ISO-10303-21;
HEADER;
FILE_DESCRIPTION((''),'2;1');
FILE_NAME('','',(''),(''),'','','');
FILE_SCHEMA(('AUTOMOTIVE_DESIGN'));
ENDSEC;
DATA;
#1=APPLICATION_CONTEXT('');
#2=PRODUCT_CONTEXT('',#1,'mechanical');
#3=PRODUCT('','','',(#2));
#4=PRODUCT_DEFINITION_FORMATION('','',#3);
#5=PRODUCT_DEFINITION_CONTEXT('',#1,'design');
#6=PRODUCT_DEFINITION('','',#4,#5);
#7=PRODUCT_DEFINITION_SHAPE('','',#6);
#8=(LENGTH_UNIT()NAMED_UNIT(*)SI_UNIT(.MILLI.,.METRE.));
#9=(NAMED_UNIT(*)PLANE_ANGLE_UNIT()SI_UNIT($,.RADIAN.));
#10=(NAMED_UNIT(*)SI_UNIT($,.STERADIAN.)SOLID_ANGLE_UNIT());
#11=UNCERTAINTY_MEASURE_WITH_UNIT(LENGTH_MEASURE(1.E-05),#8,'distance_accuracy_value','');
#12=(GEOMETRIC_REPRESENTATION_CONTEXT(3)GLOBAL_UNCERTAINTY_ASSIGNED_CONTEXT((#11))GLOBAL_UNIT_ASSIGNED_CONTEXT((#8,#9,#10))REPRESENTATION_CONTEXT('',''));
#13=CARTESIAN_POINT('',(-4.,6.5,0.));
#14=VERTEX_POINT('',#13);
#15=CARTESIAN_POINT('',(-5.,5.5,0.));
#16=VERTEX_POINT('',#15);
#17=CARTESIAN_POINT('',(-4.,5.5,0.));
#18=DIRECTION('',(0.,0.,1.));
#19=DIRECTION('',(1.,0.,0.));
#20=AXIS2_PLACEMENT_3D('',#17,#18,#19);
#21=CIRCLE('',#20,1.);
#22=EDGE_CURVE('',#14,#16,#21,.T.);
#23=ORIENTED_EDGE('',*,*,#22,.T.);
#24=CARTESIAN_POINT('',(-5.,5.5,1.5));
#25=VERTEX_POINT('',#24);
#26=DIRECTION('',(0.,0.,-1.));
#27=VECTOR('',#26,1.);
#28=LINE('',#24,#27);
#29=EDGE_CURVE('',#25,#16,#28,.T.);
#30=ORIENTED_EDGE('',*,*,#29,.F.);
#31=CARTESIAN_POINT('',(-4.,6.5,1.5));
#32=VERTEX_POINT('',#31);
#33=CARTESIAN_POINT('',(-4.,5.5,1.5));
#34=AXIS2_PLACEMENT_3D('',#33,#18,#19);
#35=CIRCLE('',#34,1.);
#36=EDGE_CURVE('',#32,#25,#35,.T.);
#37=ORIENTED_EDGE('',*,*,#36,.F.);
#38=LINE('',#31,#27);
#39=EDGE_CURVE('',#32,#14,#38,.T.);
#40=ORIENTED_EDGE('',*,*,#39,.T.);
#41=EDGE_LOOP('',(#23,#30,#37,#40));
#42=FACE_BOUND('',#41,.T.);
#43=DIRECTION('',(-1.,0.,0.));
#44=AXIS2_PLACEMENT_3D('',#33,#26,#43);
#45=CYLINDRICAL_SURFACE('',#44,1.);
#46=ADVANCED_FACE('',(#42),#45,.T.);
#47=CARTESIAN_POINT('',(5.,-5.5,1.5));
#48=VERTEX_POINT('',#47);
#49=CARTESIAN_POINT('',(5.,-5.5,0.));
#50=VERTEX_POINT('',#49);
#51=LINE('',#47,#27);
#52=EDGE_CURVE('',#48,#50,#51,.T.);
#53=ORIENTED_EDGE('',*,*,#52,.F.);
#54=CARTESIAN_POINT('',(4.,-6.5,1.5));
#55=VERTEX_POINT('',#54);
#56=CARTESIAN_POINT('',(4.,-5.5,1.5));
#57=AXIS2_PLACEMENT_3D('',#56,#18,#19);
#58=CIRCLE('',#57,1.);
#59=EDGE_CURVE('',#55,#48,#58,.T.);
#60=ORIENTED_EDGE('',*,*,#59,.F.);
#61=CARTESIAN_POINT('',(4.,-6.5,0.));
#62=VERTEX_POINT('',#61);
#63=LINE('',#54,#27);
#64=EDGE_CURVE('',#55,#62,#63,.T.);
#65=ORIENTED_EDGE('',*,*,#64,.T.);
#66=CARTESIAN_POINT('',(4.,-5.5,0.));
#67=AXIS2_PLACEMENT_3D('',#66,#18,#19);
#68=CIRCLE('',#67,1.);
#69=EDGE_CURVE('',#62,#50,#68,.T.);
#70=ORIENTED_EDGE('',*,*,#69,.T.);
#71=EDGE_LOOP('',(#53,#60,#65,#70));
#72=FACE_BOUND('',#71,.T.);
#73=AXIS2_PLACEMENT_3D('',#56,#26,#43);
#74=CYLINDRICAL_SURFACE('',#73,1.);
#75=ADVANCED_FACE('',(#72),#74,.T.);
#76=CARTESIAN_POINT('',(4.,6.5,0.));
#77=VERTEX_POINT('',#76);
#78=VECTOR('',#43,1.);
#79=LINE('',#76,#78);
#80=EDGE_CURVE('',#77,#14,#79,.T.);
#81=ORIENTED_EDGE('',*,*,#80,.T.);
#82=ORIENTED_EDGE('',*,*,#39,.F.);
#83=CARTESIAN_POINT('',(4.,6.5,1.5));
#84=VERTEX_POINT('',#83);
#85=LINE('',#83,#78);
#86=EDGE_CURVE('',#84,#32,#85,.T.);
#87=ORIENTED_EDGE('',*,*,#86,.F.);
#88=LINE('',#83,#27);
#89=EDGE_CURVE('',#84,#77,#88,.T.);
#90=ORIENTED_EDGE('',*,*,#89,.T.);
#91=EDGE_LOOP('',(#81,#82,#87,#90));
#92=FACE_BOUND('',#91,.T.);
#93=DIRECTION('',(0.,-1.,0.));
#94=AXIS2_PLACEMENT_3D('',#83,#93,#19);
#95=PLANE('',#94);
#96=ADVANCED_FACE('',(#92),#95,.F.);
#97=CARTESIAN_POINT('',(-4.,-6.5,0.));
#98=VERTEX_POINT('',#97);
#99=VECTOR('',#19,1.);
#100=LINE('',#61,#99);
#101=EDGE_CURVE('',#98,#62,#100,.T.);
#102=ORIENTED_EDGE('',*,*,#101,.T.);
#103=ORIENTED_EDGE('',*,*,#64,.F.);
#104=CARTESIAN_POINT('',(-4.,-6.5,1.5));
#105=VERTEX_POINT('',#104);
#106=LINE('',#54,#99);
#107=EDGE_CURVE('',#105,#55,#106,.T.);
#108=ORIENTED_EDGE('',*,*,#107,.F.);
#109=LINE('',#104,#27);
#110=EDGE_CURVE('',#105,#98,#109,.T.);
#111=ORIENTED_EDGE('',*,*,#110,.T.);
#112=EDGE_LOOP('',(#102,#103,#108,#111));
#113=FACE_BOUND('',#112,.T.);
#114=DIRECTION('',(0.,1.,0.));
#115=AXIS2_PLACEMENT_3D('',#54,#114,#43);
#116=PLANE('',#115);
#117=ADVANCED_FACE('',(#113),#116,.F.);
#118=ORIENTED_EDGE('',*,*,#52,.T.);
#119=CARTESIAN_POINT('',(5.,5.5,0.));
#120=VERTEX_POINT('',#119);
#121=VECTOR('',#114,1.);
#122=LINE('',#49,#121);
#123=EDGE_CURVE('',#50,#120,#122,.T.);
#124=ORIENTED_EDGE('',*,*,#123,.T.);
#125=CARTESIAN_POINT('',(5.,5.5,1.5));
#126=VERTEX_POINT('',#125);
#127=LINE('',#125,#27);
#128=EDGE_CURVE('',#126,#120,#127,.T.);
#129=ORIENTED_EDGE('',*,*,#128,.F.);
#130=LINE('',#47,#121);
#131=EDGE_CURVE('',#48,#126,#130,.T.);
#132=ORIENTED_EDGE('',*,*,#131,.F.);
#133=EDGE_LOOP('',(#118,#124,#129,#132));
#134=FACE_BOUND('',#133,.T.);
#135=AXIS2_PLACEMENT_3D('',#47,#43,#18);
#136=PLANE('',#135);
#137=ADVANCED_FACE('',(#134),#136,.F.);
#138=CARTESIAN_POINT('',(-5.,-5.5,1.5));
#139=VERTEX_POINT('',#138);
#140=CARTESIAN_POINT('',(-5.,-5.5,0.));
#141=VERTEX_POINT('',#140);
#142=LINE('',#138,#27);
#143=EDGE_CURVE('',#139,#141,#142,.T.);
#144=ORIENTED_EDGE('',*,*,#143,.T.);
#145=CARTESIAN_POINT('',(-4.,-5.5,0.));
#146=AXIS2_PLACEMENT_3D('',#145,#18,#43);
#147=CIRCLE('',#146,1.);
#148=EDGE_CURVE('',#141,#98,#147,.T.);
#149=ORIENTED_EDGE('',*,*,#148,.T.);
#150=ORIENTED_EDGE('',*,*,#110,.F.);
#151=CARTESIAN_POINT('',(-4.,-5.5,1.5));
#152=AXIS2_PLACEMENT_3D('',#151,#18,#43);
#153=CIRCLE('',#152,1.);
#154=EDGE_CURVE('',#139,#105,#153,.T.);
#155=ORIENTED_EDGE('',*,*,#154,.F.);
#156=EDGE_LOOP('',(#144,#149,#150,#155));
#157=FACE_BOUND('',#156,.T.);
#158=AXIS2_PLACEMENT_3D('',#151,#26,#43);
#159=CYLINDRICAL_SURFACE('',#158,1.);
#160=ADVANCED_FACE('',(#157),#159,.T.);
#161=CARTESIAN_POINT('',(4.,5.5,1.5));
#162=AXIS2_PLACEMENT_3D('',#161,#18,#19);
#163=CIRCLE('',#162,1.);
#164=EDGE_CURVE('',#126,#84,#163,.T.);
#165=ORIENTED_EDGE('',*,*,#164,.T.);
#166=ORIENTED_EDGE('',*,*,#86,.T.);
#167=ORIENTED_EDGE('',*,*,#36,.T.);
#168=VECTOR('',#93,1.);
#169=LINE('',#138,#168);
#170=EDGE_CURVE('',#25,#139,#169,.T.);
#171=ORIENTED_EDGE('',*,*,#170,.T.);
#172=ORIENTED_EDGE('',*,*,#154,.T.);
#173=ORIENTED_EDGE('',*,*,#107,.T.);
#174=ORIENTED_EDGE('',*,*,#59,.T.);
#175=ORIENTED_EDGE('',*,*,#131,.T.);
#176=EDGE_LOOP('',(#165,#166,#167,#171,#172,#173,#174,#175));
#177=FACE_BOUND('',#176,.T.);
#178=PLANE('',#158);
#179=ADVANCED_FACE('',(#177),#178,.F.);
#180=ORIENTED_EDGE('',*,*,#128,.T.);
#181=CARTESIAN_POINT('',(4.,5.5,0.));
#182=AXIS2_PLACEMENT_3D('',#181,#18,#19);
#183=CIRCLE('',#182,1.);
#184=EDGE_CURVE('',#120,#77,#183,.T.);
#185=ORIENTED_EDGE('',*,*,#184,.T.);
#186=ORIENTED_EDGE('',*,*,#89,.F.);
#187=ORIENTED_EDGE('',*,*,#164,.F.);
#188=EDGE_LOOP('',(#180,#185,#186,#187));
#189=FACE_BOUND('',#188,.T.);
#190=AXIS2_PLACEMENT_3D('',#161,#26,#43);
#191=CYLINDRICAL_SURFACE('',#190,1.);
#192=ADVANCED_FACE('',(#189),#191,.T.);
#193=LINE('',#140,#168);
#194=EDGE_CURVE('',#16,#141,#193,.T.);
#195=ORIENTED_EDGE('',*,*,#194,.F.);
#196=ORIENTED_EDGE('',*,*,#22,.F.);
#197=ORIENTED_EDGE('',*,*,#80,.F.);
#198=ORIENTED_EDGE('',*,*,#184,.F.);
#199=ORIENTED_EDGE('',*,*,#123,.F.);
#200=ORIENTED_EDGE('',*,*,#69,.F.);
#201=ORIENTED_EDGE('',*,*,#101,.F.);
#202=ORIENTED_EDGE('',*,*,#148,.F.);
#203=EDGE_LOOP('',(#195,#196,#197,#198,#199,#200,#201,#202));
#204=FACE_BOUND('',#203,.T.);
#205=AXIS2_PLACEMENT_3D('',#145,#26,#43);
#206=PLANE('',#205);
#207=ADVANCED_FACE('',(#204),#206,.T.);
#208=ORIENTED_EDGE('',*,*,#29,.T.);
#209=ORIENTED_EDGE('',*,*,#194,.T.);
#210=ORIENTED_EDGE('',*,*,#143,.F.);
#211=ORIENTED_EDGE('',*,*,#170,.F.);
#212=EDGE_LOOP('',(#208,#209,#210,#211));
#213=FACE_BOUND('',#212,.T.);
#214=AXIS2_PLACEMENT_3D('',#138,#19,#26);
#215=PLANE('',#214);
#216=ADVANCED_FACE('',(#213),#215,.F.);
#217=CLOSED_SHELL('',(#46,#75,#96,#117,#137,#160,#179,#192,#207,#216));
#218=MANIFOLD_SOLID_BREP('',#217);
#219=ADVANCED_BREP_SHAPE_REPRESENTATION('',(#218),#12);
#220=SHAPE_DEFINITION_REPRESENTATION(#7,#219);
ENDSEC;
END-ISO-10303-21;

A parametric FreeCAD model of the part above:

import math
import FreeCAD as App
import Part
import Sketcher
from FreeCAD import Vector

doc = App.newDocument("Part")
body = doc.addObject("PartDesign::Body", "Body")

# Sketch on XY plane
sketch1 = doc.addObject("Sketcher::SketchObject", "Sketch")
body.addObject(sketch1)
sketch1.AttachmentSupport = (doc.XY_Plane, [""])
sketch1.MapMode = "FlatFace"
sketch1.addGeometry(Part.LineSegment(Vector(-4, -6.5, 0), Vector(4, -6.5, 0)), False)
sketch1.addGeometry(Part.ArcOfCircle(Part.Circle(Vector(4, -5.5, 0), Vector(0, 0, 1), 1), math.radians(-90), math.radians(0)), False)
sketch1.addGeometry(Part.LineSegment(Vector(5, -5.5, 0), Vector(5, 5.5, 0)), False)
sketch1.addGeometry(Part.ArcOfCircle(Part.Circle(Vector(4, 5.5, 0), Vector(0, 0, 1), 1), math.radians(0), math.radians(90)), False)
sketch1.addGeometry(Part.LineSegment(Vector(4, 6.5, 0), Vector(-4, 6.5, 0)), False)
sketch1.addGeometry(Part.ArcOfCircle(Part.Circle(Vector(-4, 5.5, 0), Vector(0, 0, 1), 1), math.radians(90), math.radians(180)), False)
sketch1.addGeometry(Part.LineSegment(Vector(-5, 5.5, 0), Vector(-5, -5.5, 0)), False)
sketch1.addGeometry(Part.ArcOfCircle(Part.Circle(Vector(-4, -5.5, 0), Vector(0, 0, 1), 1), math.radians(-180), math.radians(-90)), False)
sketch1.addConstraint(Sketcher.Constraint("Tangent", 0, 2, 1, 1))
sketch1.addConstraint(Sketcher.Constraint("Tangent", 1, 2, 2, 1))
sketch1.addConstraint(Sketcher.Constraint("Tangent", 2, 2, 3, 1))
sketch1.addConstraint(Sketcher.Constraint("Tangent", 3, 2, 4, 1))
sketch1.addConstraint(Sketcher.Constraint("Tangent", 4, 2, 5, 1))
sketch1.addConstraint(Sketcher.Constraint("Tangent", 5, 2, 6, 1))
sketch1.addConstraint(Sketcher.Constraint("Tangent", 6, 2, 7, 1))
sketch1.addConstraint(Sketcher.Constraint("Tangent", 7, 2, 0, 1))
sketch1.addConstraint(Sketcher.Constraint("Horizontal", 0))
sketch1.addConstraint(Sketcher.Constraint("Vertical", 2))
sketch1.addConstraint(Sketcher.Constraint("Horizontal", 4))
sketch1.addConstraint(Sketcher.Constraint("Vertical", 6))
sketch1.addConstraint(Sketcher.Constraint("Equal", 1, 3))
sketch1.addConstraint(Sketcher.Constraint("Equal", 3, 5))
sketch1.addConstraint(Sketcher.Constraint("Equal", 5, 7))
sketch1.addConstraint(Sketcher.Constraint("Symmetric", 1, 3, 5, 3, -1, 1))
sketch1.addConstraint(Sketcher.Constraint("Radius", 1, 1.0))
sketch1.addConstraint(Sketcher.Constraint("DistanceX", 0, 1, 0, 2, 8.0))
sketch1.addConstraint(Sketcher.Constraint("DistanceY", 2, 1, 2, 2, 11.0))
pad1 = doc.addObject("PartDesign::Pad", "Pad")
body.addObject(pad1)
pad1.Profile = sketch1
pad1.Length = 1.5

doc.recompute()
